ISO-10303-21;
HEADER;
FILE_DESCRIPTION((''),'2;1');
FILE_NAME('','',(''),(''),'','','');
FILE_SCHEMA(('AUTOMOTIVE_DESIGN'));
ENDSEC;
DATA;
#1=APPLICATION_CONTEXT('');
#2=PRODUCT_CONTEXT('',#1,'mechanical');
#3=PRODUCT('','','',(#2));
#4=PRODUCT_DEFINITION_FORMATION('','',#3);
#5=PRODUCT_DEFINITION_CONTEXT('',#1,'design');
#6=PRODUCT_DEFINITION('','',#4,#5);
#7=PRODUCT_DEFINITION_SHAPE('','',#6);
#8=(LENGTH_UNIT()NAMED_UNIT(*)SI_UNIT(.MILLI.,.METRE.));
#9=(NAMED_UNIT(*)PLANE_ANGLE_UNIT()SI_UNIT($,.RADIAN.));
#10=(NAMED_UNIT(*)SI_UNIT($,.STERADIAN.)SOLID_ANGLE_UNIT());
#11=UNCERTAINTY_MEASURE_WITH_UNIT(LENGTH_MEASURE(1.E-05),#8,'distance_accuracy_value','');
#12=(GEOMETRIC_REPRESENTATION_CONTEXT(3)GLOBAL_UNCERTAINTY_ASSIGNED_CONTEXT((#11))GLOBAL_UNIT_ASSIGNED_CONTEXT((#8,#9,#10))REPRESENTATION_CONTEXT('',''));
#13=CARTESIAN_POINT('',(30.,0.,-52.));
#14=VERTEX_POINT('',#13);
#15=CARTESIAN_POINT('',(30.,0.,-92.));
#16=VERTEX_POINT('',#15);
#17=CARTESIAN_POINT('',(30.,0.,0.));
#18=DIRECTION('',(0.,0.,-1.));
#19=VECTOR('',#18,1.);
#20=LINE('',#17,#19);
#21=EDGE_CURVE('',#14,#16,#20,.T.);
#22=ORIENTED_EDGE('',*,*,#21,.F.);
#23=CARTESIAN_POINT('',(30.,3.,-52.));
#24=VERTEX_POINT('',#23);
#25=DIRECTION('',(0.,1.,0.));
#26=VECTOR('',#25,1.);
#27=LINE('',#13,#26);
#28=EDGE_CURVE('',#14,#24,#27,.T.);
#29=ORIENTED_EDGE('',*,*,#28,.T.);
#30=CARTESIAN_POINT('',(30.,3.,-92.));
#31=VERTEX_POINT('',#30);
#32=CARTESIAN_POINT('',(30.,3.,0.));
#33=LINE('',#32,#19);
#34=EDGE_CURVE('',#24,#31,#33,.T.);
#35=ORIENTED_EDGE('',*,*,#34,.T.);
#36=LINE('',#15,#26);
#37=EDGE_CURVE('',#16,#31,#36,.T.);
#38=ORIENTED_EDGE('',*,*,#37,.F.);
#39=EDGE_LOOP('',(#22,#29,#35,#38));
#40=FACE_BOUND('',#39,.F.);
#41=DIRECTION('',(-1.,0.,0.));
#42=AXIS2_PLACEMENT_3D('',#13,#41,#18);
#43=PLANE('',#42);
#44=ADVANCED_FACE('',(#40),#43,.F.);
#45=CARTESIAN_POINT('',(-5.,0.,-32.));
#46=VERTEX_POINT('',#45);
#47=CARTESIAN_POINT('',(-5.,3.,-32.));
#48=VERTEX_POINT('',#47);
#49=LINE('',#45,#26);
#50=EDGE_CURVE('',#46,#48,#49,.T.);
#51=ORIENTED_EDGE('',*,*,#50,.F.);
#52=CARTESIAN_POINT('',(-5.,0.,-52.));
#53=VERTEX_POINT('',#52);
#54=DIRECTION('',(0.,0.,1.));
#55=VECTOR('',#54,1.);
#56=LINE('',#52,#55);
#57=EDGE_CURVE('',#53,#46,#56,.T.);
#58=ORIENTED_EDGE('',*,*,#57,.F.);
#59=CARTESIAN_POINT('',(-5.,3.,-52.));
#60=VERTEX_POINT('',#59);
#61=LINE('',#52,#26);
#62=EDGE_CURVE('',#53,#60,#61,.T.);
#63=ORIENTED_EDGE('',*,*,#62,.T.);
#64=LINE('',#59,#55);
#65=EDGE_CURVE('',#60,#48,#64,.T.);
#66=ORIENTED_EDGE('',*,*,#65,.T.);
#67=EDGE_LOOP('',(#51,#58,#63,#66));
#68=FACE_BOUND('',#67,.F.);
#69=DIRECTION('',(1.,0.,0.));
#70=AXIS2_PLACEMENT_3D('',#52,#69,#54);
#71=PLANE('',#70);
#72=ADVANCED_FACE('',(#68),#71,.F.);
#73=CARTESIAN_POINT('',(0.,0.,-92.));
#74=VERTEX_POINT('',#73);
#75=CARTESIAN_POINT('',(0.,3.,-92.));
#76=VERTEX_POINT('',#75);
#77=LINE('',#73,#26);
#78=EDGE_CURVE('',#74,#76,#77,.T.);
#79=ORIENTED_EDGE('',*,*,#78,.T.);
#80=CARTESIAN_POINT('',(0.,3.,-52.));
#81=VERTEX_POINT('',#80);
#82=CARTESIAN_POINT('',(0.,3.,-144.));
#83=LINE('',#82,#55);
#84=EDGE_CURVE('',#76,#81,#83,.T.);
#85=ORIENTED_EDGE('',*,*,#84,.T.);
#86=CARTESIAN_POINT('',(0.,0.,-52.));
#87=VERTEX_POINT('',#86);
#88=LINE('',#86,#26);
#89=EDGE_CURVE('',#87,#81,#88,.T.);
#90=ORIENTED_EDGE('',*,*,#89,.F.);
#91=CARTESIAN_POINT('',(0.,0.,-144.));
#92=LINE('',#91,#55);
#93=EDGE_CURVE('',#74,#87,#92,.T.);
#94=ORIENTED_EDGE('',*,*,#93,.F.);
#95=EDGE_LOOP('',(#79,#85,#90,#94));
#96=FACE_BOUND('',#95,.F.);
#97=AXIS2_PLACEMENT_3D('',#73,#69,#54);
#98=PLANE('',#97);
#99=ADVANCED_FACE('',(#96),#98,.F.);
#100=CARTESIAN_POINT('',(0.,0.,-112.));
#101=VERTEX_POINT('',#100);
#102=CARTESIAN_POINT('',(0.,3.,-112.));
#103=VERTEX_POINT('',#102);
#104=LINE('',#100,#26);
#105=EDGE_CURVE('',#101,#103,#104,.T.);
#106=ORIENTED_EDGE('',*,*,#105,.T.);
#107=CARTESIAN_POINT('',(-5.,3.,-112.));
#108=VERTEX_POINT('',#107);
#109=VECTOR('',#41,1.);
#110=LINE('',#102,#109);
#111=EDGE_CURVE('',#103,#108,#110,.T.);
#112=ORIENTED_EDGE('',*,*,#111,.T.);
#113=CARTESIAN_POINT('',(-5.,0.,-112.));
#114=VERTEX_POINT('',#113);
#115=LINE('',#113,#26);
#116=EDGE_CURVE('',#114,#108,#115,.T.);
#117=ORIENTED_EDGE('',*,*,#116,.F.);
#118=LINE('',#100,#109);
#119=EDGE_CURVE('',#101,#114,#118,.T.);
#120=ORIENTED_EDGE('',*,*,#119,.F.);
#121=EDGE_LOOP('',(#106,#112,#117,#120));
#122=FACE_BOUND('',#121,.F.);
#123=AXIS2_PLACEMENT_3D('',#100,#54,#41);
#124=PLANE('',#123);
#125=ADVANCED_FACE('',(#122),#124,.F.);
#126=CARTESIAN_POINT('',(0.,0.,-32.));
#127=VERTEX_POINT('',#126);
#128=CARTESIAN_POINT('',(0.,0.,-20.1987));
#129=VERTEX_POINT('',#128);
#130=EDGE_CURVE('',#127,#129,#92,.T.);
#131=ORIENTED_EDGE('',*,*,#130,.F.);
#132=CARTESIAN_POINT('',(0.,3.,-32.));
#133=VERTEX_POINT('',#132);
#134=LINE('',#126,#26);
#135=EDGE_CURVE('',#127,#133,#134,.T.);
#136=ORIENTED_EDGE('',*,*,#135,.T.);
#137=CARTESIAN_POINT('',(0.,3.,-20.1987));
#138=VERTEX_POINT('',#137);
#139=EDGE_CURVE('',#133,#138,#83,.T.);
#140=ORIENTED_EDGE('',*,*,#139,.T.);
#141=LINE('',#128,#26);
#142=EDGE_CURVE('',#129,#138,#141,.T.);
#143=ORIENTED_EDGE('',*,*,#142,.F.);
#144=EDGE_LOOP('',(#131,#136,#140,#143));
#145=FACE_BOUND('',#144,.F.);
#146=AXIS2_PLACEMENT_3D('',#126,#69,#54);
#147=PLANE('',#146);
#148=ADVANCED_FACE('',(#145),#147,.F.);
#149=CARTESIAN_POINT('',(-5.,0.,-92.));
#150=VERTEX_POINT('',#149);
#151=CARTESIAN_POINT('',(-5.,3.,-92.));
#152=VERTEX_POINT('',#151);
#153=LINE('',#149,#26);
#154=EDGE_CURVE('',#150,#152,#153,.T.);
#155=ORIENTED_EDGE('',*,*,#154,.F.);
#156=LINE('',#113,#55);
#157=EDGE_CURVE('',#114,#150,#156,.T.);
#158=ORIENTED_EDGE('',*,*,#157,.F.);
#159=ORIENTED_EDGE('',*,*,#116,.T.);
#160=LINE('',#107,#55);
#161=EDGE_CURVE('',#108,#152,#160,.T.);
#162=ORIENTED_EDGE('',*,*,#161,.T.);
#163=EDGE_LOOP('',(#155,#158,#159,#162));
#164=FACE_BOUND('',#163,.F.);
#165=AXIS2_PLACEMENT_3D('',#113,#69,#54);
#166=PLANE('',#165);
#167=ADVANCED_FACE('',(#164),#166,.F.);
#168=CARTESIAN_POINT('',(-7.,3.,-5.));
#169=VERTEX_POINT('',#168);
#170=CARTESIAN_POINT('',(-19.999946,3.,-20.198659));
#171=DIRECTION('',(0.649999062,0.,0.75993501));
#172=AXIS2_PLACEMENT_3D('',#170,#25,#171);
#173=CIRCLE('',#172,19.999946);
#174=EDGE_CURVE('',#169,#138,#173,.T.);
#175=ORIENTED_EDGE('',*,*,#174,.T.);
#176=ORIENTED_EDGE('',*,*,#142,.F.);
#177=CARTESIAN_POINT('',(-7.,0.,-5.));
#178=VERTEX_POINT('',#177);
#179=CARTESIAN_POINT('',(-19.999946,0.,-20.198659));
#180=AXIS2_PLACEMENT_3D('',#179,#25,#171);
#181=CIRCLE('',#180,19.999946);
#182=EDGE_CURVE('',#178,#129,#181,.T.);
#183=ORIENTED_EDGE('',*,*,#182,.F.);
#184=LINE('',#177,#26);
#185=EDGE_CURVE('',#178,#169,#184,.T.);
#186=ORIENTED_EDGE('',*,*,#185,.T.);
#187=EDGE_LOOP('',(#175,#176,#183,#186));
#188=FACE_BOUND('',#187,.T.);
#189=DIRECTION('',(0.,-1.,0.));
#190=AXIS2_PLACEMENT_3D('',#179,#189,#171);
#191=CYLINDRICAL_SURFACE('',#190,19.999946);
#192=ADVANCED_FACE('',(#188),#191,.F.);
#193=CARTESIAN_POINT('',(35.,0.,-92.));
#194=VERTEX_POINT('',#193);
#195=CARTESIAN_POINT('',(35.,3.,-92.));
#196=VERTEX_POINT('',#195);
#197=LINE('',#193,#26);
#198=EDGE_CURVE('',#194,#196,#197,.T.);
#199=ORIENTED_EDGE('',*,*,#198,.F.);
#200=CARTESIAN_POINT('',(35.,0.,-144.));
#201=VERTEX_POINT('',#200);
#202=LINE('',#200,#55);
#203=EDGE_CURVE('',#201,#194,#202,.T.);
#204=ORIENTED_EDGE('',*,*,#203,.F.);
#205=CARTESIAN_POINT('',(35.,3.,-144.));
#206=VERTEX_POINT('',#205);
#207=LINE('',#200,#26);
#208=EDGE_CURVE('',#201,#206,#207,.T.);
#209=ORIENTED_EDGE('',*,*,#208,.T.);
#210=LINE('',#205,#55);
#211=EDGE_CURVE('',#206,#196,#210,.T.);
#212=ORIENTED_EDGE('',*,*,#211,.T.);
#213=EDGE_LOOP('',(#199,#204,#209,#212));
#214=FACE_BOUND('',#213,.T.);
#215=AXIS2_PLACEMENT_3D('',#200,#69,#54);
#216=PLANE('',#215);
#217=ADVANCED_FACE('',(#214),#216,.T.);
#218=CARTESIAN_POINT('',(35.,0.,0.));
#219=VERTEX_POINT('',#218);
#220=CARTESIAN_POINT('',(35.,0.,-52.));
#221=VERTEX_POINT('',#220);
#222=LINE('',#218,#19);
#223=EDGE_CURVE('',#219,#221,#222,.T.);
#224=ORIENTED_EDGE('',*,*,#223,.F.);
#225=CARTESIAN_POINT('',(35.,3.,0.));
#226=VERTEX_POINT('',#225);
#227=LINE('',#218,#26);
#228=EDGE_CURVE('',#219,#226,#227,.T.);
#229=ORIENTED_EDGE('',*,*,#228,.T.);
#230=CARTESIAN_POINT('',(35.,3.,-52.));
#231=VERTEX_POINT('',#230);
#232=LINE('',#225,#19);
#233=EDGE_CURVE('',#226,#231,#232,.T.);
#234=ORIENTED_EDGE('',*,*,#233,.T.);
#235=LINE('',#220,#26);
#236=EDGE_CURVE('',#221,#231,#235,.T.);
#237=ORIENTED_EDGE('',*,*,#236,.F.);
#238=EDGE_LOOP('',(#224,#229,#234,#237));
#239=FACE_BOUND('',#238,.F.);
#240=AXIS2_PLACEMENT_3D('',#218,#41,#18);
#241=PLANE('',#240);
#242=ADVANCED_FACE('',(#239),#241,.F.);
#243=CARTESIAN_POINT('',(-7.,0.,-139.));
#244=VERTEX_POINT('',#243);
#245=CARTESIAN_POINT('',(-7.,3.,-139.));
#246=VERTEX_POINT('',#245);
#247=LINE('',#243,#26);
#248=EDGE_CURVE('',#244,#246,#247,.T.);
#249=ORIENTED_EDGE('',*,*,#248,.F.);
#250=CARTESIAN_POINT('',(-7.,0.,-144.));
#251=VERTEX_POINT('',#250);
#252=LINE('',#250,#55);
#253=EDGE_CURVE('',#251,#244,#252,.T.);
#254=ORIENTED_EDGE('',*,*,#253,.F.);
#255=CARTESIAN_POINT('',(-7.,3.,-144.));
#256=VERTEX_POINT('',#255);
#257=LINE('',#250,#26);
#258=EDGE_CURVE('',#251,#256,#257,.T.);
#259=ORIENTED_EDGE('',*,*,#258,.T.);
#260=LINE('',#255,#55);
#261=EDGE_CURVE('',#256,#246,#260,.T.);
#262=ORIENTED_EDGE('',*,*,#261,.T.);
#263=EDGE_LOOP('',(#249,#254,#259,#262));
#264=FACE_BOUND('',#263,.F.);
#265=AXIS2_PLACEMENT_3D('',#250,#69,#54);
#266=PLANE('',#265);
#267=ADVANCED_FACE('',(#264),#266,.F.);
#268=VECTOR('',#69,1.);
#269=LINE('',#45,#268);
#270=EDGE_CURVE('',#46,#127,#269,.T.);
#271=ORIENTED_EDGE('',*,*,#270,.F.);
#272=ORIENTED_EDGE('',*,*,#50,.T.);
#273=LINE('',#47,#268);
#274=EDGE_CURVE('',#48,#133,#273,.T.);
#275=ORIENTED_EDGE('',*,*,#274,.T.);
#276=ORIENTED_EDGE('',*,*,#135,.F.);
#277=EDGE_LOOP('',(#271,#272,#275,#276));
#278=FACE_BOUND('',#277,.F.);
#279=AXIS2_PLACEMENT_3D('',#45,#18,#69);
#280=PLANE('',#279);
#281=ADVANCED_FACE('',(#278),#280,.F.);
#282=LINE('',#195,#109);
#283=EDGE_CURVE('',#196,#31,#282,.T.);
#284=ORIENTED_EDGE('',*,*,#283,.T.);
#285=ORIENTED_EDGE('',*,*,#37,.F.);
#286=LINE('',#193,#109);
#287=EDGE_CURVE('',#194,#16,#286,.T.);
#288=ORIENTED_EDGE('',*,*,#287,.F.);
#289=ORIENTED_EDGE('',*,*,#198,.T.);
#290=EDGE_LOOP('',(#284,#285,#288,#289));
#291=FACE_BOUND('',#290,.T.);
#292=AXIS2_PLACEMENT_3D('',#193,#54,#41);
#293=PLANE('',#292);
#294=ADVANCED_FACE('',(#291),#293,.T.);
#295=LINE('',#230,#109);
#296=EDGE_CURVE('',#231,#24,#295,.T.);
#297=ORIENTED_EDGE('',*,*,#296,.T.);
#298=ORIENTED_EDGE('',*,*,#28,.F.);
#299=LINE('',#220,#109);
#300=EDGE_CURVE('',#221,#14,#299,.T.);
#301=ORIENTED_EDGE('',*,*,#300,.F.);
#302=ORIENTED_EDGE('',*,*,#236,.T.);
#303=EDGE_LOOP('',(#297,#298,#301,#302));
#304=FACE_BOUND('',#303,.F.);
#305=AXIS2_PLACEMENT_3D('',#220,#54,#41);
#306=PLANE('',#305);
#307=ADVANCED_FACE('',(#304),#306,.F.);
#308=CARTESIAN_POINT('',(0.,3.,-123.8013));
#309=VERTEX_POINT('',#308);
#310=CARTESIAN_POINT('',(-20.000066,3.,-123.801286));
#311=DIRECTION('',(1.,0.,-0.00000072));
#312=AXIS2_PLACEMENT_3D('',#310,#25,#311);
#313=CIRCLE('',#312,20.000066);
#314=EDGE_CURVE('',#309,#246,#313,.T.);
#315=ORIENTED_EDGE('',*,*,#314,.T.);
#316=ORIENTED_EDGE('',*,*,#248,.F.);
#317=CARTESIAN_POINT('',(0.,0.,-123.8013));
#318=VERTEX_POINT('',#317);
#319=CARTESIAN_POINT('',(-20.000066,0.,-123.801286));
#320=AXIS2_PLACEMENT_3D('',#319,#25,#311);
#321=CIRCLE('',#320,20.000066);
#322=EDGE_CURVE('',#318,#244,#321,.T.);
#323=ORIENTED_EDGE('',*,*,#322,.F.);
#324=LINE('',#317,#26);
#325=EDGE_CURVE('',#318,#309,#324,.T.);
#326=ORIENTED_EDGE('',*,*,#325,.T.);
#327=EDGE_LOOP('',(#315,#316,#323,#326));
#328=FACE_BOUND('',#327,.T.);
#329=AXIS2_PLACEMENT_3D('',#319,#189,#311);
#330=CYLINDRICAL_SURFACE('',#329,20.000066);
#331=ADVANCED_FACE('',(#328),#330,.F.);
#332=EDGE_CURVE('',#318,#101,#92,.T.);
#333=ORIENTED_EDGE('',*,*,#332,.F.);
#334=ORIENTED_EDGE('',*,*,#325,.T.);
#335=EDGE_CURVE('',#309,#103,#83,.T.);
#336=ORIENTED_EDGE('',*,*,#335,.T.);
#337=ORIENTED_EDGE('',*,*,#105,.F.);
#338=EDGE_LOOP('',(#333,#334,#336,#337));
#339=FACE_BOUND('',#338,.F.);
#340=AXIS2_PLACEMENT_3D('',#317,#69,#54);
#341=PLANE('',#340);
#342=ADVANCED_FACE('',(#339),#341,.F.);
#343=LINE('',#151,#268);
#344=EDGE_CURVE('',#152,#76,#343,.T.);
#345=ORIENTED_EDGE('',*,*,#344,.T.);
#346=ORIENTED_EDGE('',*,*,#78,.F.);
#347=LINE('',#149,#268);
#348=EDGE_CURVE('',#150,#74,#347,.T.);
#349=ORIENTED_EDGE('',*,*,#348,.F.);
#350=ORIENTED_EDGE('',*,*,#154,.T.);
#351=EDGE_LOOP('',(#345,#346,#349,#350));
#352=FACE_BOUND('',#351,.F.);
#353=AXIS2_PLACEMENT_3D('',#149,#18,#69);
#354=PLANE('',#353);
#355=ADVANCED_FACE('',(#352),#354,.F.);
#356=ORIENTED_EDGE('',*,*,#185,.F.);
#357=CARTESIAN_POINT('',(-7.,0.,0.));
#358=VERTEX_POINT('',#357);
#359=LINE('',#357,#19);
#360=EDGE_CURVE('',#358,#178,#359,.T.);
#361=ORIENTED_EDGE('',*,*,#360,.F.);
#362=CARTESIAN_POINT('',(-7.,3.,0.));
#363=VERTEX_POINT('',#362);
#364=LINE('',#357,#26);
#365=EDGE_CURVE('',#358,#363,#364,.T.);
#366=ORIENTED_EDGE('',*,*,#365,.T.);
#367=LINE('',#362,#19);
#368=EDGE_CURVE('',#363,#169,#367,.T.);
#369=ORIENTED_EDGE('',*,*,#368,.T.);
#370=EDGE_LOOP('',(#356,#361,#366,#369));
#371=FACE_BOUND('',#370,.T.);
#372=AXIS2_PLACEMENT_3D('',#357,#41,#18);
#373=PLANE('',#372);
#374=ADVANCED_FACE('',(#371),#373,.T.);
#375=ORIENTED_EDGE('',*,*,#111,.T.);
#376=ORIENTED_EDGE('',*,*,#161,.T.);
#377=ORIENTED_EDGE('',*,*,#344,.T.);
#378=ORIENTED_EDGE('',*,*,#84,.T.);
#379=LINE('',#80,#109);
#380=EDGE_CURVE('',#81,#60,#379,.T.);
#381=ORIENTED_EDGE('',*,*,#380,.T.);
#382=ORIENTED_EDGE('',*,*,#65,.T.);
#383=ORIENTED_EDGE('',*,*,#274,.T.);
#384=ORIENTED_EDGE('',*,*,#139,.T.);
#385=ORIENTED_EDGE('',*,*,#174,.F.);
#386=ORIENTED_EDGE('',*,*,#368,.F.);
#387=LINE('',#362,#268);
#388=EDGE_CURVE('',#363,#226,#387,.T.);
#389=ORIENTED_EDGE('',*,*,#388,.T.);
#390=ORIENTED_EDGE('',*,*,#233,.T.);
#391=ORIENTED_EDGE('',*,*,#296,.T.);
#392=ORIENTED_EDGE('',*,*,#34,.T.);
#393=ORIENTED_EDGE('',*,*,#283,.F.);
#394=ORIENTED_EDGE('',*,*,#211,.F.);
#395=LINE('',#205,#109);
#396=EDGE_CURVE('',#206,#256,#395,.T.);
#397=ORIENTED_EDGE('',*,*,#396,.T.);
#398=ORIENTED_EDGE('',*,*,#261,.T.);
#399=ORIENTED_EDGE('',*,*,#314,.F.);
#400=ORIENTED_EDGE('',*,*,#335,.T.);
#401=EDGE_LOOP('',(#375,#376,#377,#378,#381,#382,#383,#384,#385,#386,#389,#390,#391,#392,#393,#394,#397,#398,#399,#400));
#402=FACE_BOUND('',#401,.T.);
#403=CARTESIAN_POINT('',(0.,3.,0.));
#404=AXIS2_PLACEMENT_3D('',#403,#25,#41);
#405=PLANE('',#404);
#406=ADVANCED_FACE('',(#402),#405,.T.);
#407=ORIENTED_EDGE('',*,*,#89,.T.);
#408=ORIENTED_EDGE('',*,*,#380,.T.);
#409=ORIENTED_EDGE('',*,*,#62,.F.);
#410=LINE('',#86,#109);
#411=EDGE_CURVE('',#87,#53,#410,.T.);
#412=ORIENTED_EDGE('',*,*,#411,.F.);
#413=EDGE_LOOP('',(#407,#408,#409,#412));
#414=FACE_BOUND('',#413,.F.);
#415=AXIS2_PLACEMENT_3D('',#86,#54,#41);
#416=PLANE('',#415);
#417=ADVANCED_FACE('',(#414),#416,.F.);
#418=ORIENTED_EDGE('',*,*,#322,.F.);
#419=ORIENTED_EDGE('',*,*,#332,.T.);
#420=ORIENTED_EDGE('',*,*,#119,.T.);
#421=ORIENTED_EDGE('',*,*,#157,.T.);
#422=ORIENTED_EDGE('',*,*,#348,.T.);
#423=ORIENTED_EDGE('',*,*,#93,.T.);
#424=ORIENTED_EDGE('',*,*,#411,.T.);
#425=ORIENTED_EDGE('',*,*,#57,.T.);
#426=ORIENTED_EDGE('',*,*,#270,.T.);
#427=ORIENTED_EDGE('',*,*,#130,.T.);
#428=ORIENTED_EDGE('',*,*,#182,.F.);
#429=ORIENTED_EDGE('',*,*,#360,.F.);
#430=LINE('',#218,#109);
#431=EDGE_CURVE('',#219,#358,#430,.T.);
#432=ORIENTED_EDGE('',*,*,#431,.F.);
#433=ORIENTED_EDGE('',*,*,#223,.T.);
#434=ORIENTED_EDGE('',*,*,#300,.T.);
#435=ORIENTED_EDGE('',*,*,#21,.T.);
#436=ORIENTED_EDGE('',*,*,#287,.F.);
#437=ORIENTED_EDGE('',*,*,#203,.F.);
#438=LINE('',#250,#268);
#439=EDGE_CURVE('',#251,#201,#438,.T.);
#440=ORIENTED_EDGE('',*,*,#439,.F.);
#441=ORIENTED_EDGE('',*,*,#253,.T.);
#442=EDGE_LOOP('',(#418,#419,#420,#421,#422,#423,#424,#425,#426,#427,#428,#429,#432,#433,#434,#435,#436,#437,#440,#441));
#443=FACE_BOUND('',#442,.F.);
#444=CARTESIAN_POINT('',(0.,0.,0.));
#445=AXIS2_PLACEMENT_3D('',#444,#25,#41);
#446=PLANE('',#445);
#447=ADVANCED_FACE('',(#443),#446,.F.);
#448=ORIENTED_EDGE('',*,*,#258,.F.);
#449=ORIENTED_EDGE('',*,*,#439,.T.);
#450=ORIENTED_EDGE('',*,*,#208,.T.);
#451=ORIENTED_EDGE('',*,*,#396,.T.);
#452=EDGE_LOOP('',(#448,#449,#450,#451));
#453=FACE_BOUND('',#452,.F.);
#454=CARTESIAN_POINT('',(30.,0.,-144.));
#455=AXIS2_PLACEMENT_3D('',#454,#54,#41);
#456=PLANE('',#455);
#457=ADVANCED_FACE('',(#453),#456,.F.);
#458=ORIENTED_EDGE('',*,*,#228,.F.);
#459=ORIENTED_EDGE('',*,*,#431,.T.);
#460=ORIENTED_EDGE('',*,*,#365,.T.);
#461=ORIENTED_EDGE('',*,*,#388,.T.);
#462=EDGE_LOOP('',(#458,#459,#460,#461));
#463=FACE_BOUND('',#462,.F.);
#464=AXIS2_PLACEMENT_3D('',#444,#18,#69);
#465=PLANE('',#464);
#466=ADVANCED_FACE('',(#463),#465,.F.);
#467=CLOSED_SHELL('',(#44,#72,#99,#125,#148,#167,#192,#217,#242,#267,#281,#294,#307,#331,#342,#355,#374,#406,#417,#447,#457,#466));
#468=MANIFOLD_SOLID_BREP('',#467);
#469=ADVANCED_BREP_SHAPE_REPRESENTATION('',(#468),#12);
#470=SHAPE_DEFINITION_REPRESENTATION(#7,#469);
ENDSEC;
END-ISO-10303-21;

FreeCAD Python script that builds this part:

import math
import FreeCAD as App
import Part
import Sketcher

V = App.Vector

doc = App.newDocument("Part")
body = doc.addObject("PartDesign::Body", "Body")

# Sketch on XZ plane
sketch1 = body.newObject("Sketcher::SketchObject", "Sketch")
sketch1.AttachmentSupport = (doc.getObject("XZ_Plane"), [""])
sketch1.MapMode = "FlatFace"
sketch1.addGeometry([
    Part.LineSegment(V(0, -32, 0), V(0, -20, 0)),  # 0
    Part.ArcOfCircle(Part.Circle(V(-20, -20, 0), V(0, 0, 1), 20), math.radians(0), math.radians(49)),  # 1
    Part.LineSegment(V(-7, -5, 0), V(-7, 0, 0)),  # 2
    Part.LineSegment(V(-7, 0, 0), V(35, 0, 0)),  # 3
    Part.LineSegment(V(35, 0, 0), V(35, -52, 0)),  # 4
    Part.LineSegment(V(35, -52, 0), V(30, -52, 0)),  # 5
    Part.LineSegment(V(30, -52, 0), V(30, -92, 0)),  # 6
    Part.LineSegment(V(30, -92, 0), V(35, -92, 0)),  # 7
    Part.LineSegment(V(35, -92, 0), V(35, -144, 0)),  # 8
    Part.LineSegment(V(35, -144, 0), V(-7, -144, 0)),  # 9
    Part.LineSegment(V(-7, -144, 0), V(-7, -139, 0)),  # 10
    Part.ArcOfCircle(Part.Circle(V(-20, -124, 0), V(0, 0, 1), 20), math.radians(-49), math.radians(0)),  # 11
    Part.LineSegment(V(0, -124, 0), V(0, -112, 0)),  # 12
    Part.LineSegment(V(0, -112, 0), V(-5, -112, 0)),  # 13
    Part.LineSegment(V(-5, -112, 0), V(-5, -92, 0)),  # 14
    Part.LineSegment(V(-5, -92, 0), V(0, -92, 0)),  # 15
    Part.LineSegment(V(0, -92, 0), V(0, -52, 0)),  # 16
    Part.LineSegment(V(0, -52, 0), V(-5, -52, 0)),  # 17
    Part.LineSegment(V(-5, -52, 0), V(-5, -32, 0)),  # 18
    Part.LineSegment(V(-5, -32, 0), V(0, -32, 0)),  # 19
], False)
sketch1.addConstraint([
    Sketcher.Constraint("Tangent", 0, 2, 1, 1),
    Sketcher.Constraint("Coincident", 1, 2, 2, 1),
    Sketcher.Constraint("Coincident", 2, 2, 3, 1),
    Sketcher.Constraint("Coincident", 3, 2, 4, 1),
    Sketcher.Constraint("Coincident", 4, 2, 5, 1),
    Sketcher.Constraint("Coincident", 5, 2, 6, 1),
    Sketcher.Constraint("Coincident", 6, 2, 7, 1),
    Sketcher.Constraint("Coincident", 7, 2, 8, 1),
    Sketcher.Constraint("Coincident", 8, 2, 9, 1),
    Sketcher.Constraint("Coincident", 9, 2, 10, 1),
    Sketcher.Constraint("Coincident", 10, 2, 11, 1),
    Sketcher.Constraint("Tangent", 11, 2, 12, 1),
    Sketcher.Constraint("Coincident", 12, 2, 13, 1),
    Sketcher.Constraint("Coincident", 13, 2, 14, 1),
    Sketcher.Constraint("Coincident", 14, 2, 15, 1),
    Sketcher.Constraint("Coincident", 15, 2, 16, 1),
    Sketcher.Constraint("Coincident", 16, 2, 17, 1),
    Sketcher.Constraint("Coincident", 17, 2, 18, 1),
    Sketcher.Constraint("Coincident", 18, 2, 19, 1),
    Sketcher.Constraint("Coincident", 19, 2, 0, 1),
    Sketcher.Constraint("Vertical", 0),
    Sketcher.Constraint("Vertical", 2),
    Sketcher.Constraint("Horizontal", 3),
    Sketcher.Constraint("Vertical", 4),
    Sketcher.Constraint("Horizontal", 5),
    Sketcher.Constraint("Vertical", 6),
    Sketcher.Constraint("Horizontal", 7),
    Sketcher.Constraint("Vertical", 8),
    Sketcher.Constraint("Horizontal", 9),
    Sketcher.Constraint("Vertical", 10),
    Sketcher.Constraint("Vertical", 12),
    Sketcher.Constraint("Horizontal", 13),
    Sketcher.Constraint("Vertical", 14),
    Sketcher.Constraint("Horizontal", 15),
    Sketcher.Constraint("Vertical", 16),
    Sketcher.Constraint("Horizontal", 17),
    Sketcher.Constraint("Vertical", 18),
    Sketcher.Constraint("Horizontal", 19),
    Sketcher.Constraint("Equal", 1, 11),
    Sketcher.Constraint("PointOnObject", 0, 2, -2),
    Sketcher.Constraint("PointOnObject", 2, 2, -1),
    Sketcher.Constraint("PointOnObject", 11, 2, -2),
    Sketcher.Constraint("PointOnObject", 15, 2, -2),
    Sketcher.Constraint("Horizontal", 7, 2, 14, 2),
    Sketcher.Constraint("Horizontal", 5, 2, 16, 2),
    Sketcher.Constraint("Vertical", 4, 2, 7, 2),
    Sketcher.Constraint("Vertical", 2, 2, 9, 2),
    Sketcher.Constraint("Vertical", 14, 2, 17, 2),
    Sketcher.Constraint("Equal", 7, 13),
    Sketcher.Constraint("Equal", 19, 2),
    Sketcher.Constraint("Equal", 4, 8),
    Sketcher.Constraint("Equal", 2, 10),
    Sketcher.Constraint("Equal", 0, 12),
    Sketcher.Constraint("Radius", 1, 20.0),
    Sketcher.Constraint("DistanceX", 5, 2, 5, 1, 5.0),
    Sketcher.Constraint("DistanceY", 6, 2, 6, 1, 40.0),
    Sketcher.Constraint("DistanceY", 14, 1, 14, 2, 20.0),
    Sketcher.Constraint("DistanceX", 1, 2, -1, 1, 7.0),
    Sketcher.Constraint("DistanceX", -1, 1, 5, 2, 30.0),
    Sketcher.Constraint("DistanceY", 8, 2, -1, 1, 144.0),
])
pad1 = body.newObject("PartDesign::Pad", "Pad")
pad1.Profile = sketch1
pad1.Length = 3
pad1.Reversed = True

doc.recompute()
